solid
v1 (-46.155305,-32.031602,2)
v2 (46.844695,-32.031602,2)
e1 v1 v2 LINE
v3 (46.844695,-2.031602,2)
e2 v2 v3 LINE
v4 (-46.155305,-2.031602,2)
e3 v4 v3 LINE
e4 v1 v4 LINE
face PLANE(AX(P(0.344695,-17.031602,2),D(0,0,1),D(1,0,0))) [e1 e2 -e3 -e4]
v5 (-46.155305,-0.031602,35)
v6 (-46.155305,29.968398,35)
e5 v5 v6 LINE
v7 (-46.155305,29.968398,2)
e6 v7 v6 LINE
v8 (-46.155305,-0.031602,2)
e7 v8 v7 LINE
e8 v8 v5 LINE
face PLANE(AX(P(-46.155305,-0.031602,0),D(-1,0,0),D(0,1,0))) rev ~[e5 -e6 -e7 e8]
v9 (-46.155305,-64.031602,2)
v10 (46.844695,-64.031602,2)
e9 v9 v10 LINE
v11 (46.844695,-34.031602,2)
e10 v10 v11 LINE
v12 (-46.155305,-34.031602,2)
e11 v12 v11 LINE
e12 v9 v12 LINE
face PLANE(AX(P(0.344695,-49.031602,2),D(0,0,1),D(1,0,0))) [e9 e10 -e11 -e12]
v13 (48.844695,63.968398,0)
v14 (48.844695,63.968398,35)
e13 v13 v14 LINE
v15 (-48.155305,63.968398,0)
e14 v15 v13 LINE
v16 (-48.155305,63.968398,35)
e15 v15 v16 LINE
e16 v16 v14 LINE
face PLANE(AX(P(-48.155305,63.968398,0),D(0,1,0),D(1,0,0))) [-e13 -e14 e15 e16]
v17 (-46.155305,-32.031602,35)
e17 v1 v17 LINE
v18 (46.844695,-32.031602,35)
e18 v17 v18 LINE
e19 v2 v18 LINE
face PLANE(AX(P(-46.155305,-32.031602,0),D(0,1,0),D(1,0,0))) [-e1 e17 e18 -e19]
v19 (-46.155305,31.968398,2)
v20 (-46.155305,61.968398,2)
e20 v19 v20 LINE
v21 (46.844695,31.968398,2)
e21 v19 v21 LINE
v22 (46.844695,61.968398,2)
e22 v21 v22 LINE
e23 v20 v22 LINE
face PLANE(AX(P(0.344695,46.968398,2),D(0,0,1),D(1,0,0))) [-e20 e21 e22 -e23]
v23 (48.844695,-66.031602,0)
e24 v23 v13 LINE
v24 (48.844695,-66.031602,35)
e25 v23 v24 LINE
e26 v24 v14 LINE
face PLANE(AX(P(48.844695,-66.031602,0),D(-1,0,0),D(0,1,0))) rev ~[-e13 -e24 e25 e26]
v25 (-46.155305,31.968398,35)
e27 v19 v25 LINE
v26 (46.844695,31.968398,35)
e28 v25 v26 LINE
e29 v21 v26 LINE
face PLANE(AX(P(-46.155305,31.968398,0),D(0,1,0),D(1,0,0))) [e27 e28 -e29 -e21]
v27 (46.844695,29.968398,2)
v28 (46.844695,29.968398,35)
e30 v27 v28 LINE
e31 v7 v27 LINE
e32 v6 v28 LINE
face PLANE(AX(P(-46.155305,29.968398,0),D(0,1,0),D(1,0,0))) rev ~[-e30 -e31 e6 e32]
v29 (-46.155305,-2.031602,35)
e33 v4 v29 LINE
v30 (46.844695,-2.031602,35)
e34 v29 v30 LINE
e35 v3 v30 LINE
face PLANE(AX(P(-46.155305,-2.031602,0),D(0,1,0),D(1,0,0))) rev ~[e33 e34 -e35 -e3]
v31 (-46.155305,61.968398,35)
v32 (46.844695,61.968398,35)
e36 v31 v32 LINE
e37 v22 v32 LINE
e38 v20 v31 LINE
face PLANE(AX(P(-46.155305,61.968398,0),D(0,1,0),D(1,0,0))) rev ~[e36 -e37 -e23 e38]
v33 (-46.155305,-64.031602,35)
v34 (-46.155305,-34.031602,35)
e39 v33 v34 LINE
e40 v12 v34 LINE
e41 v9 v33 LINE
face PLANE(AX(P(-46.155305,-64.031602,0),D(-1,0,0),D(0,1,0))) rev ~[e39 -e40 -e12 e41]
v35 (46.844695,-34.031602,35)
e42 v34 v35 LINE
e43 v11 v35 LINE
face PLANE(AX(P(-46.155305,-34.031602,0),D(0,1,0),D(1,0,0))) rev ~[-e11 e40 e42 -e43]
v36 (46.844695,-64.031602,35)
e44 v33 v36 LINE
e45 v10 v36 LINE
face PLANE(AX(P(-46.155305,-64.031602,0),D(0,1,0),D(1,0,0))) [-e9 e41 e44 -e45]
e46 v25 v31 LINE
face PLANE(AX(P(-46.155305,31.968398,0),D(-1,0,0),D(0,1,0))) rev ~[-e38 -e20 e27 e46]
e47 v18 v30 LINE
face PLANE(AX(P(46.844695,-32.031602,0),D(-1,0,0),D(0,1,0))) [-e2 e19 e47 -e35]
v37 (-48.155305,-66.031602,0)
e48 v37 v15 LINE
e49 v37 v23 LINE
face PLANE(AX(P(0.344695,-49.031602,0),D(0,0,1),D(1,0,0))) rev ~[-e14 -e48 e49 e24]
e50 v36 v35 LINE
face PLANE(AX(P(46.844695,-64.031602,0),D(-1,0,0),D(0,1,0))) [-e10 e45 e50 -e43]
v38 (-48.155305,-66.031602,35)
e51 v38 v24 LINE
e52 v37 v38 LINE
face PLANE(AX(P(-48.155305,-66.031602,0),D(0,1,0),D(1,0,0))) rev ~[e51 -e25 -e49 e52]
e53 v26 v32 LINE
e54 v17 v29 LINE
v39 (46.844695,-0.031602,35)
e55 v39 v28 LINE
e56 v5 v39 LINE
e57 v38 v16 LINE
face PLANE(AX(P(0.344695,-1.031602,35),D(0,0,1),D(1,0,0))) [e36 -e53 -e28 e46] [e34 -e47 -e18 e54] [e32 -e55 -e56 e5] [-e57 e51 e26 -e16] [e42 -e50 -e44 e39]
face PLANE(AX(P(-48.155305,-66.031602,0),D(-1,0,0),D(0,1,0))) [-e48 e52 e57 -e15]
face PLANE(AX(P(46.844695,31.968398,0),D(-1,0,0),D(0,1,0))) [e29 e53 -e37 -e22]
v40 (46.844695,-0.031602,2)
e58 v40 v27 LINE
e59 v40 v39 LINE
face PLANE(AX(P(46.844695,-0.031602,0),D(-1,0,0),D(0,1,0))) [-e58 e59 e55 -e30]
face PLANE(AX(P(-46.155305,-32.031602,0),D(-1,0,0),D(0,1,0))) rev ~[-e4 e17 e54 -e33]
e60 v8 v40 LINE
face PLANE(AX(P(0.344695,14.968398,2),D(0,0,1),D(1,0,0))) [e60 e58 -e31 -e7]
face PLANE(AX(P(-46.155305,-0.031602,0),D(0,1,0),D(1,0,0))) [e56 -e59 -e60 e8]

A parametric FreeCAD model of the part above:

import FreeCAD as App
import Part
import Sketcher

V = App.Vector
Q = App.Units.Quantity

doc = App.newDocument("Part")
params = doc.addObject("Spreadsheet::Sheet", "Params")
for row, (alias, value) in enumerate([
    ("sketch1_width", "97 mm"),
    ("sketch1_width2", "93 mm"),
    ("sketch1_height", "130 mm"),
    ("sketch1_height2", "30 mm"),
    ("pad1_length", "35 mm"),
    ("sketch2_width", "93 mm"),
    ("sketch2_height", "30 mm"),
    ("pad2_length", "2 mm"),
], start=1):
    params.set(f"A{row}", alias)
    params.set(f"B{row}", "=" + value)
    params.setAlias(f"B{row}", alias)

body = doc.addObject("PartDesign::Body", "Body")

# Sketch on XY plane
sketch1 = body.newObject("Sketcher::SketchObject", "Sketch")
sketch1.AttachmentSupport = (doc.getObject("XY_Plane"), [""])
sketch1.MapMode = "FlatFace"
sketch1.addGeometry(Part.LineSegment(V(-48, 64, 0), V(-48, -66, 0)), False)
sketch1.addGeometry(Part.LineSegment(V(-48, -66, 0), V(49, -66, 0)), False)
sketch1.addGeometry(Part.LineSegment(V(49, -66, 0), V(49, 64, 0)), False)
sketch1.addGeometry(Part.LineSegment(V(49, 64, 0), V(-48, 64, 0)), False)
sketch1.addGeometry(Part.LineSegment(V(47, -64, 0), V(-46, -64, 0)), False)
sketch1.addGeometry(Part.LineSegment(V(-46, -64, 0), V(-46, -34, 0)), False)
sketch1.addGeometry(Part.LineSegment(V(-46, -34, 0), V(47, -34, 0)), False)
sketch1.addGeometry(Part.LineSegment(V(47, -34, 0), V(47, -64, 0)), False)
sketch1.addGeometry(Part.LineSegment(V(47, -32, 0), V(-46, -32, 0)), False)
sketch1.addGeometry(Part.LineSegment(V(-46, -32, 0), V(-46, -2, 0)), False)
sketch1.addGeometry(Part.LineSegment(V(-46, -2, 0), V(47, -2, 0)), False)
sketch1.addGeometry(Part.LineSegment(V(47, -2, 0), V(47, -32, 0)), False)
sketch1.addGeometry(Part.LineSegment(V(47, 0, 0), V(-46, 0, 0)), False)
sketch1.addGeometry(Part.LineSegment(V(-46, 0, 0), V(-46, 30, 0)), False)
sketch1.addGeometry(Part.LineSegment(V(-46, 30, 0), V(47, 30, 0)), False)
sketch1.addGeometry(Part.LineSegment(V(47, 30, 0), V(47, 0, 0)), False)
sketch1.addGeometry(Part.LineSegment(V(47, 32, 0), V(-46, 32, 0)), False)
sketch1.addGeometry(Part.LineSegment(V(-46, 32, 0), V(-46, 62, 0)), False)
sketch1.addGeometry(Part.LineSegment(V(-46, 62, 0), V(47, 62, 0)), False)
sketch1.addGeometry(Part.LineSegment(V(47, 62, 0), V(47, 32, 0)), False)
sketch1.addConstraint(Sketcher.Constraint("Coincident", 0, 2, 1, 1))
sketch1.addConstraint(Sketcher.Constraint("Coincident", 1, 2, 2, 1))
sketch1.addConstraint(Sketcher.Constraint("Coincident", 2, 2, 3, 1))
sketch1.addConstraint(Sketcher.Constraint("Coincident", 3, 2, 0, 1))
sketch1.addConstraint(Sketcher.Constraint("Coincident", 4, 2, 5, 1))
sketch1.addConstraint(Sketcher.Constraint("Coincident", 5, 2, 6, 1))
sketch1.addConstraint(Sketcher.Constraint("Coincident", 6, 2, 7, 1))
sketch1.addConstraint(Sketcher.Constraint("Coincident", 7, 2, 4, 1))
sketch1.addConstraint(Sketcher.Constraint("Coincident", 8, 2, 9, 1))
sketch1.addConstraint(Sketcher.Constraint("Coincident", 9, 2, 10, 1))
sketch1.addConstraint(Sketcher.Constraint("Coincident", 10, 2, 11, 1))
sketch1.addConstraint(Sketcher.Constraint("Coincident", 11, 2, 8, 1))
sketch1.addConstraint(Sketcher.Constraint("Coincident", 12, 2, 13, 1))
sketch1.addConstraint(Sketcher.Constraint("Coincident", 13, 2, 14, 1))
sketch1.addConstraint(Sketcher.Constraint("Coincident", 14, 2, 15, 1))
sketch1.addConstraint(Sketcher.Constraint("Coincident", 15, 2, 12, 1))
sketch1.addConstraint(Sketcher.Constraint("Coincident", 16, 2, 17, 1))
sketch1.addConstraint(Sketcher.Constraint("Coincident", 17, 2, 18, 1))
sketch1.addConstraint(Sketcher.Constraint("Coincident", 18, 2, 19, 1))
sketch1.addConstraint(Sketcher.Constraint("Coincident", 19, 2, 16, 1))
sketch1.addConstraint(Sketcher.Constraint("Vertical", 0))
sketch1.addConstraint(Sketcher.Constraint("Horizontal", 1))
sketch1.addConstraint(Sketcher.Constraint("Vertical", 2))
sketch1.addConstraint(Sketcher.Constraint("Horizontal", 3))
sketch1.addConstraint(Sketcher.Constraint("Horizontal", 4))
sketch1.addConstraint(Sketcher.Constraint("Vertical", 5))
sketch1.addConstraint(Sketcher.Constraint("Horizontal", 6))
sketch1.addConstraint(Sketcher.Constraint("Vertical", 7))
sketch1.addConstraint(Sketcher.Constraint("Horizontal", 8))
sketch1.addConstraint(Sketcher.Constraint("Vertical", 9))
sketch1.addConstraint(Sketcher.Constraint("Horizontal", 10))
sketch1.addConstraint(Sketcher.Constraint("Vertical", 11))
sketch1.addConstraint(Sketcher.Constraint("Horizontal", 12))
sketch1.addConstraint(Sketcher.Constraint("Vertical", 13))
sketch1.addConstraint(Sketcher.Constraint("Horizontal", 14))
sketch1.addConstraint(Sketcher.Constraint("Vertical", 15))
sketch1.addConstraint(Sketcher.Constraint("Horizontal", 16))
sketch1.addConstraint(Sketcher.Constraint("Vertical", 17))
sketch1.addConstraint(Sketcher.Constraint("Horizontal", 18))
sketch1.addConstraint(Sketcher.Constraint("Vertical", 19))
sketch1.addConstraint(Sketcher.Constraint("Vertical", 5, 2, 8, 2))
sketch1.addConstraint(Sketcher.Constraint("Vertical", 7, 2, 10, 2))
sketch1.addConstraint(Sketcher.Constraint("Vertical", 9, 2, 12, 2))
sketch1.addConstraint(Sketcher.Constraint("Vertical", 11, 2, 14, 2))
sketch1.addConstraint(Sketcher.Constraint("Vertical", 13, 2, 16, 2))
sketch1.addConstraint(Sketcher.Constraint("Vertical", 15, 2, 18, 2))
sketch1.addConstraint(Sketcher.Constraint("Equal", 7, 9))
sketch1.addConstraint(Sketcher.Constraint("Equal", 11, 13))
sketch1.addConstraint(Sketcher.Constraint("Equal", 15, 17))
sketch1.addConstraint(Sketcher.Constraint("DistanceX", 1, 1, 1, 2, Q("97 mm")))
sketch1.addConstraint(Sketcher.Constraint("DistanceX", 4, 2, 4, 1, Q("93 mm")))
sketch1.addConstraint(Sketcher.Constraint("DistanceY", 0, 2, 0, 1, Q("130 mm")))
sketch1.addConstraint(Sketcher.Constraint("DistanceY", 5, 1, 5, 2, Q("30 mm")))
sketch1.addConstraint(Sketcher.Constraint("DistanceX", 0, 2, 4, 2, Q("2 mm")))
sketch1.addConstraint(Sketcher.Constraint("DistanceY", 0, 2, 4, 2, Q("2 mm")))
sketch1.addConstraint(Sketcher.Constraint("DistanceY", 5, 2, 8, 2, Q("2 mm")))
sketch1.addConstraint(Sketcher.Constraint("DistanceY", 9, 2, 12, 2, Q("2 mm")))
sketch1.addConstraint(Sketcher.Constraint("DistanceY", 13, 2, 16, 2, Q("2 mm")))
sketch1.addConstraint(Sketcher.Constraint("DistanceY", 9, 2, -1, 1, Q("2.031602 mm")))
sketch1.addConstraint(Sketcher.Constraint("DistanceX", 0, 2, -1, 1, Q("48.155305 mm")))
sketch1.setExpression("Constraints[49]", "Params.sketch1_width")
sketch1.setExpression("Constraints[50]", "Params.sketch1_width2")
sketch1.setExpression("Constraints[51]", "Params.sketch1_height")
sketch1.setExpression("Constraints[52]", "Params.sketch1_height2")
pad1 = body.newObject("PartDesign::Pad", "Pad")
pad1.Profile = sketch1
pad1.setExpression("Length", "Params.pad1_length")

# Sketch on XY plane
sketch2 = body.newObject("Sketcher::SketchObject", "Sketch001")
sketch2.AttachmentSupport = (doc.getObject("XY_Plane"), [""])
sketch2.MapMode = "FlatFace"
sketch2.addGeometry(Part.LineSegment(V(-46, -34, 0), V(-46, -64, 0)), False)
sketch2.addGeometry(Part.LineSegment(V(-46, -64, 0), V(47, -64, 0)), False)
sketch2.addGeometry(Part.LineSegment(V(47, -64, 0), V(47, -34, 0)), False)
sketch2.addGeometry(Part.LineSegment(V(47, -34, 0), V(-46, -34, 0)), False)
sketch2.addGeometry(Part.LineSegment(V(-46, -2, 0), V(-46, -32, 0)), False)
sketch2.addGeometry(Part.LineSegment(V(-46, -32, 0), V(47, -32, 0)), False)
sketch2.addGeometry(Part.LineSegment(V(47, -32, 0), V(47, -2, 0)), False)
sketch2.addGeometry(Part.LineSegment(V(47, -2, 0), V(-46, -2, 0)), False)
sketch2.addGeometry(Part.LineSegment(V(-46, 30, 0), V(-46, 0, 0)), False)
sketch2.addGeometry(Part.LineSegment(V(-46, 0, 0), V(47, 0, 0)), False)
sketch2.addGeometry(Part.LineSegment(V(47, 0, 0), V(47, 30, 0)), False)
sketch2.addGeometry(Part.LineSegment(V(47, 30, 0), V(-46, 30, 0)), False)
sketch2.addGeometry(Part.LineSegment(V(-46, 62, 0), V(-46, 32, 0)), False)
sketch2.addGeometry(Part.LineSegment(V(-46, 32, 0), V(47, 32, 0)), False)
sketch2.addGeometry(Part.LineSegment(V(47, 32, 0), V(47, 62, 0)), False)
sketch2.addGeometry(Part.LineSegment(V(47, 62, 0), V(-46, 62, 0)), False)
sketch2.addConstraint(Sketcher.Constraint("Coincident", 0, 2, 1, 1))
sketch2.addConstraint(Sketcher.Constraint("Coincident", 1, 2, 2, 1))
sketch2.addConstraint(Sketcher.Constraint("Coincident", 2, 2, 3, 1))
sketch2.addConstraint(Sketcher.Constraint("Coincident", 3, 2, 0, 1))
sketch2.addConstraint(Sketcher.Constraint("Coincident", 4, 2, 5, 1))
sketch2.addConstraint(Sketcher.Constraint("Coincident", 5, 2, 6, 1))
sketch2.addConstraint(Sketcher.Constraint("Coincident", 6, 2, 7, 1))
sketch2.addConstraint(Sketcher.Constraint("Coincident", 7, 2, 4, 1))
sketch2.addConstraint(Sketcher.Constraint("Coincident", 8, 2, 9, 1))
sketch2.addConstraint(Sketcher.Constraint("Coincident", 9, 2, 10, 1))
sketch2.addConstraint(Sketcher.Constraint("Coincident", 10, 2, 11, 1))
sketch2.addConstraint(Sketcher.Constraint("Coincident", 11, 2, 8, 1))
sketch2.addConstraint(Sketcher.Constraint("Coincident", 12, 2, 13, 1))
sketch2.addConstraint(Sketcher.Constraint("Coincident", 13, 2, 14, 1))
sketch2.addConstraint(Sketcher.Constraint("Coincident", 14, 2, 15, 1))
sketch2.addConstraint(Sketcher.Constraint("Coincident", 15, 2, 12, 1))
sketch2.addConstraint(Sketcher.Constraint("Vertical", 0))
sketch2.addConstraint(Sketcher.Constraint("Horizontal", 1))
sketch2.addConstraint(Sketcher.Constraint("Vertical", 2))
sketch2.addConstraint(Sketcher.Constraint("Horizontal", 3))
sketch2.addConstraint(Sketcher.Constraint("Vertical", 4))
sketch2.addConstraint(Sketcher.Constraint("Horizontal", 5))
sketch2.addConstraint(Sketcher.Constraint("Vertical", 6))
sketch2.addConstraint(Sketcher.Constraint("Horizontal", 7))
sketch2.addConstraint(Sketcher.Constraint("Vertical", 8))
sketch2.addConstraint(Sketcher.Constraint("Horizontal", 9))
sketch2.addConstraint(Sketcher.Constraint("Vertical", 10))
sketch2.addConstraint(Sketcher.Constraint("Horizontal", 11))
sketch2.addConstraint(Sketcher.Constraint("Vertical", 12))
sketch2.addConstraint(Sketcher.Constraint("Horizontal", 13))
sketch2.addConstraint(Sketcher.Constraint("Vertical", 14))
sketch2.addConstraint(Sketcher.Constraint("Horizontal", 15))
sketch2.addConstraint(Sketcher.Constraint("Vertical", 3, 2, 4, 2))
sketch2.addConstraint(Sketcher.Constraint("Vertical", 2, 2, 5, 2))
sketch2.addConstraint(Sketcher.Constraint("Vertical", 7, 2, 8, 2))
sketch2.addConstraint(Sketcher.Constraint("Vertical", 6, 2, 9, 2))
sketch2.addConstraint(Sketcher.Constraint("Vertical", 11, 2, 12, 2))
sketch2.addConstraint(Sketcher.Constraint("Vertical", 10, 2, 13, 2))
sketch2.addConstraint(Sketcher.Constraint("Equal", 2, 4))
sketch2.addConstraint(Sketcher.Constraint("Equal", 6, 8))
sketch2.addConstraint(Sketcher.Constraint("Equal", 10, 12))
sketch2.addConstraint(Sketcher.Constraint("DistanceX", 1, 1, 1, 2, Q("93 mm")))
sketch2.addConstraint(Sketcher.Constraint("DistanceY", 0, 2, 0, 1, Q("30 mm")))
sketch2.addConstraint(Sketcher.Constraint("DistanceY", 3, 2, 4, 2, Q("2 mm")))
sketch2.addConstraint(Sketcher.Constraint("DistanceY", 7, 2, 8, 2, Q("2 mm")))
sketch2.addConstraint(Sketcher.Constraint("DistanceY", 11, 2, 12, 2, Q("2 mm")))
sketch2.addConstraint(Sketcher.Constraint("DistanceY", 6, 2, -1, 1, Q("2.031602 mm")))
sketch2.addConstraint(Sketcher.Constraint("DistanceX", 0, 2, -1, 1, Q("46.155305 mm")))
sketch2.setExpression("Constraints[41]", "Params.sketch2_width")
sketch2.setExpression("Constraints[42]", "Params.sketch2_height")
pad2 = body.newObject("PartDesign::Pad", "Pad001")
pad2.Profile = sketch2
pad2.setExpression("Length", "Params.pad2_length")

doc.recompute()
